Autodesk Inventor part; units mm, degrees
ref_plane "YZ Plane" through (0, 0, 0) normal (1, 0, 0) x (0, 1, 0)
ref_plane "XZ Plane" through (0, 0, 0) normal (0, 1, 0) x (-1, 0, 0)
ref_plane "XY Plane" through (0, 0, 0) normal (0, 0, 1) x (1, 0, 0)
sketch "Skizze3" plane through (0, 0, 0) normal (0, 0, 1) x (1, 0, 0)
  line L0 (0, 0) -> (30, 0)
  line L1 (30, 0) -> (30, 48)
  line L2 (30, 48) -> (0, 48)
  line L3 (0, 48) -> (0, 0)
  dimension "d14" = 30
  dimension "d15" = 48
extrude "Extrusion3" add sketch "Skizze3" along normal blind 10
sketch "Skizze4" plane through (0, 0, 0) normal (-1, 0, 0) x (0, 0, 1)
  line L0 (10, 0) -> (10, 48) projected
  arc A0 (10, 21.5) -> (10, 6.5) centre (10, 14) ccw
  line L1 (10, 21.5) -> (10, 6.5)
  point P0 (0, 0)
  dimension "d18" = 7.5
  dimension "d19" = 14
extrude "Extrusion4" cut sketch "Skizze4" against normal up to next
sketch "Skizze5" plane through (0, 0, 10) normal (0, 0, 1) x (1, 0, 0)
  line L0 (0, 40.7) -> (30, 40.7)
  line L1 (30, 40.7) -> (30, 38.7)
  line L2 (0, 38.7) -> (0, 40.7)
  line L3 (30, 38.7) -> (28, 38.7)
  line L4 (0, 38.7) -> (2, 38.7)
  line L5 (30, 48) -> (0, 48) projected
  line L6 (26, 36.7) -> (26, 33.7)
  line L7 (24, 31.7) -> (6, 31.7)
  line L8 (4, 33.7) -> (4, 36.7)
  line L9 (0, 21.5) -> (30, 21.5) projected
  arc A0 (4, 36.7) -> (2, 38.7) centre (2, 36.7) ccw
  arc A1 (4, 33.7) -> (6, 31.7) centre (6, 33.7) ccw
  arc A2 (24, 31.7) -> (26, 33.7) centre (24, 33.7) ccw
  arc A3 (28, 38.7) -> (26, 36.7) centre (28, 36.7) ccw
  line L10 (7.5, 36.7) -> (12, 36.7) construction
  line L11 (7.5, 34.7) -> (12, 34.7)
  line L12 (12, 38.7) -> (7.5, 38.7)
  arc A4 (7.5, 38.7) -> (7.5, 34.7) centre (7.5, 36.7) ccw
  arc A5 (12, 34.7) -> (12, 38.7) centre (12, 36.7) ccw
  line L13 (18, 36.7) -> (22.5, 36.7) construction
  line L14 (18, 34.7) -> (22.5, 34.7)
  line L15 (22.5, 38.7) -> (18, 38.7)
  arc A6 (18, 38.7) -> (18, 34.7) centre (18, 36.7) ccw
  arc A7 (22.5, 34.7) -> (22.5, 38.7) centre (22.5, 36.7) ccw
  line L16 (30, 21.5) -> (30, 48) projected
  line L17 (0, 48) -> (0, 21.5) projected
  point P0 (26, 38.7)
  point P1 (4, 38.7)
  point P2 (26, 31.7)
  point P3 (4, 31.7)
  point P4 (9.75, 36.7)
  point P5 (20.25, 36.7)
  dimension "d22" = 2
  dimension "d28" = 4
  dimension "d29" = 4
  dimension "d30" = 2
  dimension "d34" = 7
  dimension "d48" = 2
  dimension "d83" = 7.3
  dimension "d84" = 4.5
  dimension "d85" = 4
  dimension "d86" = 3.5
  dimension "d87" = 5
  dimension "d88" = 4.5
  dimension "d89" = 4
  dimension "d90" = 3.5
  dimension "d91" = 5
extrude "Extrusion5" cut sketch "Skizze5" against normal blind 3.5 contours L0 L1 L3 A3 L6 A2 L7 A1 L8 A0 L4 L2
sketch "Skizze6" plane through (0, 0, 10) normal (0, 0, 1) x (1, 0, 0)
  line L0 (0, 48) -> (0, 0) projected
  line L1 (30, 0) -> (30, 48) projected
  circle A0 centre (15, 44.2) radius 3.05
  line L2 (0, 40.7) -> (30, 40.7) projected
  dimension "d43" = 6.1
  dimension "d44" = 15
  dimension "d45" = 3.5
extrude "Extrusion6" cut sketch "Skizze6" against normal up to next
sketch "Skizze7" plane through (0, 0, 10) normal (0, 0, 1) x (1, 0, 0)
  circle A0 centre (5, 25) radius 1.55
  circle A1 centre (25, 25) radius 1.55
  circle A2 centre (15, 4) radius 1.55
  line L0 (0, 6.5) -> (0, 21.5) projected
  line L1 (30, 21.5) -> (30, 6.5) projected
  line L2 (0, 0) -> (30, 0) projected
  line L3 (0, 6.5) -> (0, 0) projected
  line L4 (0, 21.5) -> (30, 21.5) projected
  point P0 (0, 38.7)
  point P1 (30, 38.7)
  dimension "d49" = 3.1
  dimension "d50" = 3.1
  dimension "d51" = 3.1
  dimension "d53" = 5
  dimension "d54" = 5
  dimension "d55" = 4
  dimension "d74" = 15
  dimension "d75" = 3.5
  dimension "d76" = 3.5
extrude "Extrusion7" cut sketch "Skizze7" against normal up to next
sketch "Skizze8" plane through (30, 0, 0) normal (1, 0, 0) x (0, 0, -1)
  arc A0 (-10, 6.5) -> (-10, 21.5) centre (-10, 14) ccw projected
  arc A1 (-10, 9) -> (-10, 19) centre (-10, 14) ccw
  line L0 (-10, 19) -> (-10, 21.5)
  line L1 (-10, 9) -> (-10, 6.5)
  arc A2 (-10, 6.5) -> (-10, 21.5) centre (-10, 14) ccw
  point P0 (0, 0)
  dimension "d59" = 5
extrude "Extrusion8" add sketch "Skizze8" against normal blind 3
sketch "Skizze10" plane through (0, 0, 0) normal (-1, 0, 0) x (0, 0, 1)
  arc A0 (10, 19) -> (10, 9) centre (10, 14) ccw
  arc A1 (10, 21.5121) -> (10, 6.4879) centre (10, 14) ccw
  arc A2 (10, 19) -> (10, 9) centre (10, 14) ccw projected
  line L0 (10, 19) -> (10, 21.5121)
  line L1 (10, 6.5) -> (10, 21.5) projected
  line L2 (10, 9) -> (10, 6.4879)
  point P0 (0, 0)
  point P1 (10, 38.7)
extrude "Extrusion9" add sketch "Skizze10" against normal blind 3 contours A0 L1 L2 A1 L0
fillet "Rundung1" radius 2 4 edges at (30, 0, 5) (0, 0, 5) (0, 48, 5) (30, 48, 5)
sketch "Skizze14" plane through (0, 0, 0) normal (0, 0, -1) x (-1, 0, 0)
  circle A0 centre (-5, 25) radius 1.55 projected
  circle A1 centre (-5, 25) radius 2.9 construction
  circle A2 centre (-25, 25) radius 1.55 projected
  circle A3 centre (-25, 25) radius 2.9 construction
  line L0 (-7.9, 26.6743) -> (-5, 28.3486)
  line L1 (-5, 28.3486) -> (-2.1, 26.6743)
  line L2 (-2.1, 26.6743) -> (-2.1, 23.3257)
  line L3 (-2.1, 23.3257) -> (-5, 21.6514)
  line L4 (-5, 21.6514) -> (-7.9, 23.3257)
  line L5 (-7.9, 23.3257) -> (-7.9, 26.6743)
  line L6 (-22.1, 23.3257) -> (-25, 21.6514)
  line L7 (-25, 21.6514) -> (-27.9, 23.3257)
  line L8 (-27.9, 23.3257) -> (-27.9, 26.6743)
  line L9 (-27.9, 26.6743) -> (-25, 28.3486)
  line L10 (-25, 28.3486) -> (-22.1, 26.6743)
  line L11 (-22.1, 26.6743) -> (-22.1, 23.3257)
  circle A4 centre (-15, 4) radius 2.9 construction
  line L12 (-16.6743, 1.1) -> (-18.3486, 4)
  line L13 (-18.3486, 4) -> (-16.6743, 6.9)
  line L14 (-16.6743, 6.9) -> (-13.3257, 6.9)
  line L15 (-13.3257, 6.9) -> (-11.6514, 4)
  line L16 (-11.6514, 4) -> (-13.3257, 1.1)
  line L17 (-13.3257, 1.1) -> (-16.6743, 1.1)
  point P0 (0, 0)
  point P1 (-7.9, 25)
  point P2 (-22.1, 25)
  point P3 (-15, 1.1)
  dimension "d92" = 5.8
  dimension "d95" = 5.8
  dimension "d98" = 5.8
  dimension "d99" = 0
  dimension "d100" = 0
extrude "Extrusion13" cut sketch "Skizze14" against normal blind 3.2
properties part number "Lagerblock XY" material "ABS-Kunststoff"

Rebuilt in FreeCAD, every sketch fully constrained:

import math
import FreeCAD as App
import Part
import Sketcher

V = App.Vector
Q = App.Units.Quantity


def edges_at(feature, points):
    """Names of the edges that pass closest to the given points."""
    edges = feature.Shape.Edges
    near = lambda p: min(range(len(edges)), key=lambda i: edges[i].distToShape(Part.Vertex(*p))[0])
    return sorted({f"Edge{near(p) + 1}" for p in points})


def add_polygon(sketch, points):
    """Adds a closed chain of lines whose ends are joined by coincident constraints."""
    first, n = sketch.GeometryCount, len(points)
    for a, b in zip(points, points[1:] + points[:1]):
        sketch.addGeometry(Part.LineSegment(App.Vector(*a, 0), App.Vector(*b, 0)), False)
    for i in range(n):
        sketch.addConstraint(Sketcher.Constraint("Coincident", first + i, 2, first + (i + 1) % n, 1))

doc = App.newDocument("Part")
params = doc.addObject("Spreadsheet::Sheet", "Params")
for row, (alias, value) in enumerate([
    ("sketch1_width", "30 mm"),
    ("sketch1_height", "48 mm"),
    ("pad1_length", "10 mm"),
    ("sketch2_radius", "7.5 mm"),
    ("sketch3_radius", "2 mm"),
    ("sketch3_width", "2 mm"),
    ("sketch3_width2", "4.5 mm"),
    ("sketch3_width3", "30 mm"),
    ("pocket2_length", "3.5 mm"),
    ("sketch4_diameter", "6.1 mm"),
    ("sketch5_diameter", "3.1 mm"),
    ("pocket4_length", "10 mm"),
    ("sketch6_radius", "5 mm"),
    ("sketch6_radius2", "7.5 mm"),
    ("pad2_length", "3 mm"),
    ("sketch7_radius", "5 mm"),
    ("pad3_length", "3 mm"),
    ("fillet_radius", "2 mm"),
    ("sketch8_diameter", "3.1 mm"),
    ("pocket5_length", "3.2 mm"),
], start=1):
    params.set(f"A{row}", alias)
    params.set(f"B{row}", "=" + value)
    params.setAlias(f"B{row}", alias)

body = doc.addObject("PartDesign::Body", "Body")

# Sketch on XY plane
sketch1 = doc.addObject("Sketcher::SketchObject", "Sketch")
body.addObject(sketch1)
sketch1.AttachmentSupport = (doc.XY_Plane, [""])
sketch1.MapMode = "FlatFace"
add_polygon(sketch1, [(0, 48), (0, 0), (30, 0), (30, 48)])  # lines 0-3
sketch1.addConstraint([
    Sketcher.Constraint("Vertical", 0),
    Sketcher.Constraint("Horizontal", 1),
    Sketcher.Constraint("Vertical", 2),
    Sketcher.Constraint("Horizontal", 3),
    Sketcher.Constraint("Coincident", 0, 2, -1, 1),
    Sketcher.Constraint("DistanceX", 1, 1, 1, 2, Q("30 mm")),
    Sketcher.Constraint("DistanceY", 0, 2, 0, 1, Q("48 mm")),
])
sketch1.setExpression("Constraints[9]", "Params.sketch1_width")
sketch1.setExpression("Constraints[10]", "Params.sketch1_height")
pad1 = doc.addObject("PartDesign::Pad", "Pad")
body.addObject(pad1)
pad1.Profile = sketch1
pad1.setExpression("Length", "Params.pad1_length")

# Sketch on YZ plane
sketch2 = doc.addObject("Sketcher::SketchObject", "Sketch001")
body.addObject(sketch2)
sketch2.AttachmentSupport = (doc.YZ_Plane, [""])
sketch2.MapMode = "FlatFace"
sketch2.addGeometry([
    Part.ArcOfCircle(Part.Circle(V(14, 10, 0), V(0, 0, 1), 8), math.radians(180), math.radians(360)),
    Part.LineSegment(V(6, 10, 0), V(22, 10, 0)),
], False)
sketch2.addConstraint([
    Sketcher.Constraint("Coincident", 0, 1, 1, 1),
    Sketcher.Constraint("Coincident", 1, 2, 0, 2),
    Sketcher.Constraint("Horizontal", 1),
    Sketcher.Constraint("Radius", 0, Q("7.5 mm")),
    Sketcher.Constraint("DistanceX", -1, 1, 0, 3, Q("14 mm")),
    Sketcher.Constraint("DistanceY", -1, 1, 0, 3, Q("10 mm")),
    Sketcher.Constraint("DistanceY", -1, 1, 0, 1, Q("10 mm")),
])
sketch2.setExpression("Constraints[3]", "Params.sketch2_radius")
pocket1 = doc.addObject("PartDesign::Pocket", "Pocket")
body.addObject(pocket1)
pocket1.Profile = sketch2
pocket1.Type = "UpToFirst"
pocket1.Reversed = True

# Sketch on XY plane
sketch3 = doc.addObject("Sketcher::SketchObject", "Sketch002")
body.addObject(sketch3)
sketch3.AttachmentSupport = (doc.XY_Plane, [""])
sketch3.MapMode = "FlatFace"
sketch3.AttachmentOffset = App.Placement(V(0, 0, 10), App.Rotation())
sketch3.addGeometry([
    Part.LineSegment(V(30, 40.7, 0), V(0, 40.7, 0)),  # 0
    Part.LineSegment(V(0, 40.7, 0), V(0, 38.7, 0)),  # 1
    Part.LineSegment(V(0, 38.7, 0), V(2, 38.7, 0)),  # 2
    Part.ArcOfCircle(Part.Circle(V(2, 36.7, 0), V(0, 0, 1), 2), math.radians(0), math.radians(90)),  # 3
    Part.LineSegment(V(4, 36.7, 0), V(4, 33.7, 0)),  # 4
    Part.ArcOfCircle(Part.Circle(V(6, 33.7, 0), V(0, 0, 1), 2), math.radians(180), math.radians(270)),  # 5
    Part.LineSegment(V(6, 31.7, 0), V(24, 31.7, 0)),  # 6
    Part.ArcOfCircle(Part.Circle(V(24, 33.7, 0), V(0, 0, 1), 2), math.radians(-90), math.radians(0)),  # 7
    Part.LineSegment(V(26, 33.7, 0), V(26, 36.7, 0)),  # 8
    Part.ArcOfCircle(Part.Circle(V(28, 36.7, 0), V(0, 0, 1), 2), math.radians(90), math.radians(180)),  # 9
    Part.LineSegment(V(28, 38.7, 0), V(30, 38.7, 0)),  # 10
    Part.LineSegment(V(30, 38.7, 0), V(30, 40.7, 0)),  # 11
    Part.LineSegment(V(12, 34.7, 0), V(7.5, 34.7, 0)),  # 12
    Part.ArcOfCircle(Part.Circle(V(7.5, 36.7, 0), V(0, 0, 1), 2), math.radians(90), math.radians(270)),  # 13
    Part.LineSegment(V(7.5, 38.7, 0), V(12, 38.7, 0)),  # 14
    Part.ArcOfCircle(Part.Circle(V(12, 36.7, 0), V(0, 0, 1), 2), math.radians(-90), math.radians(90)),  # 15
    Part.LineSegment(V(22.5, 34.7, 0), V(18, 34.7, 0)),  # 16
    Part.ArcOfCircle(Part.Circle(V(18, 36.7, 0), V(0, 0, 1), 2), math.radians(90), math.radians(270)),  # 17
    Part.LineSegment(V(18, 38.7, 0), V(22.5, 38.7, 0)),  # 18
    Part.ArcOfCircle(Part.Circle(V(22.5, 36.7, 0), V(0, 0, 1), 2), math.radians(-90), math.radians(90)),  # 19
], False)
sketch3.addConstraint([
    Sketcher.Constraint("Coincident", 0, 2, 1, 1),
    Sketcher.Constraint("Coincident", 1, 2, 2, 1),
    Sketcher.Constraint("Tangent", 2, 2, 3, 2),
    Sketcher.Constraint("Tangent", 3, 1, 4, 1),
    Sketcher.Constraint("Tangent", 4, 2, 5, 1),
    Sketcher.Constraint("Tangent", 5, 2, 6, 1),
    Sketcher.Constraint("Tangent", 6, 2, 7, 1),
    Sketcher.Constraint("Tangent", 7, 2, 8, 1),
    Sketcher.Constraint("Tangent", 8, 2, 9, 2),
    Sketcher.Constraint("Tangent", 9, 1, 10, 1),
    Sketcher.Constraint("Coincident", 10, 2, 11, 1),
    Sketcher.Constraint("Coincident", 11, 2, 0, 1),
    Sketcher.Constraint("Tangent", 12, 2, 13, 2),
    Sketcher.Constraint("Tangent", 13, 1, 14, 1),
    Sketcher.Constraint("Tangent", 14, 2, 15, 2),
    Sketcher.Constraint("Tangent", 15, 1, 12, 1),
    Sketcher.Constraint("Tangent", 16, 2, 17, 2),
    Sketcher.Constraint("Tangent", 17, 1, 18, 1),
    Sketcher.Constraint("Tangent", 18, 2, 19, 2),
    Sketcher.Constraint("Tangent", 19, 1, 16, 1),
    Sketcher.Constraint("Horizontal", 0),
    Sketcher.Constraint("Vertical", 1),
    Sketcher.Constraint("Horizontal", 2),
    Sketcher.Constraint("Vertical", 4),
    Sketcher.Constraint("Horizontal", 6),
    Sketcher.Constraint("Vertical", 8),
    Sketcher.Constraint("Horizontal", 10),
    Sketcher.Constraint("Vertical", 11),
    Sketcher.Constraint("Horizontal", 12),
    Sketcher.Constraint("Horizontal", 14),
    Sketcher.Constraint("Horizontal", 16),
    Sketcher.Constraint("Horizontal", 18),
    Sketcher.Constraint("Equal", 3, 5),
    Sketcher.Constraint("Equal", 5, 7),
    Sketcher.Constraint("Equal", 7, 9),
    Sketcher.Constraint("Equal", 9, 13),
    Sketcher.Constraint("Equal", 15, 17),
    Sketcher.Constraint("PointOnObject", 0, 2, -2),
    Sketcher.Constraint("Horizontal", 3, 3, 9, 3),
    Sketcher.Constraint("Horizontal", 9, 3, 13, 3),
    Sketcher.Constraint("Horizontal", 15, 3, 17, 3),
    Sketcher.Constraint("Equal", 2, 10),
    Sketcher.Constraint("Equal", 14, 16),
    Sketcher.Constraint("Equal", 10, 1),
    Sketcher.Constraint("Radius", 3, Q("2 mm")),
    Sketcher.Constraint("DistanceX", 2, 1, 2, 2, Q("2 mm")),
    Sketcher.Constraint("DistanceX", 12, 2, 12, 1, Q("4.5 mm")),
    Sketcher.Constraint("DistanceY", 5, 3, 0, 2, Q("7 mm")),
    Sketcher.Constraint("DistanceX", 3, 1, 13, 3, Q("3.5 mm")),
    Sketcher.Constraint("DistanceX", 19, 3, 7, 2, Q("3.5 mm")),
    Sketcher.Constraint("DistanceX", 0, 2, 0, 1, Q("30 mm")),
    Sketcher.Constraint("DistanceY", -1, 1, 3, 3, Q("36.7 mm")),
])
sketch3.setExpression("Constraints[44]", "Params.sketch3_radius")
sketch3.setExpression("Constraints[45]", "Params.sketch3_width")
sketch3.setExpression("Constraints[46]", "Params.sketch3_width2")
sketch3.setExpression("Constraints[50]", "Params.sketch3_width3")
pocket2 = doc.addObject("PartDesign::Pocket", "Pocket001")
body.addObject(pocket2)
pocket2.Profile = sketch3
pocket2.setExpression("Length", "Params.pocket2_length")

# Sketch on XY plane
sketch4 = doc.addObject("Sketcher::SketchObject", "Sketch003")
body.addObject(sketch4)
sketch4.AttachmentSupport = (doc.XY_Plane, [""])
sketch4.MapMode = "FlatFace"
sketch4.AttachmentOffset = App.Placement(V(0, 0, 10), App.Rotation())
sketch4.addGeometry(Part.Circle(V(15, 44.2, 0), V(0, 0, 1), 3), False)
sketch4.addConstraint([
    Sketcher.Constraint("Diameter", 0, Q("6.1 mm")),
    Sketcher.Constraint("DistanceX", -1, 1, 0, 3, Q("15 mm")),
    Sketcher.Constraint("DistanceY", -1, 1, 0, 3, Q("44.2 mm")),
])
sketch4.setExpression("Constraints[0]", "Params.sketch4_diameter")
pocket3 = doc.addObject("PartDesign::Pocket", "Pocket002")
body.addObject(pocket3)
pocket3.Profile = sketch4
pocket3.Type = "UpToFirst"

# Sketch on XY plane
sketch5 = doc.addObject("Sketcher::SketchObject", "Sketch004")
body.addObject(sketch5)
sketch5.AttachmentSupport = (doc.XY_Plane, [""])
sketch5.MapMode = "FlatFace"
sketch5.AttachmentOffset = App.Placement(V(0, 0, 10), App.Rotation())
sketch5.addGeometry([
    Part.Circle(V(5, 25, 0), V(0, 0, 1), 1.6),
    Part.Circle(V(25, 25, 0), V(0, 0, 1), 1.6),
    Part.Circle(V(15, 4, 0), V(0, 0, 1), 1.6),
], False)
sketch5.addConstraint([
    Sketcher.Constraint("Equal", 0, 1),
    Sketcher.Constraint("Equal", 1, 2),
    Sketcher.Constraint("Horizontal", 0, 3, 1, 3),
    Sketcher.Constraint("Diameter", 0, Q("3.1 mm")),
    Sketcher.Constraint("DistanceX", -1, 1, 0, 3, Q("5 mm")),
    Sketcher.Constraint("DistanceX", -1, 1, 2, 3, Q("15 mm")),
    Sketcher.Constraint("DistanceY", -1, 1, 2, 3, Q("4 mm")),
    Sketcher.Constraint("DistanceY", -1, 1, 0, 3, Q("25 mm")),
    Sketcher.Constraint("DistanceX", -1, 1, 1, 3, Q("25 mm")),
])
sketch5.setExpression("Constraints[3]", "Params.sketch5_diameter")
pocket4 = doc.addObject("PartDesign::Pocket", "Pocket003")
body.addObject(pocket4)
pocket4.Profile = sketch5
pocket4.setExpression("Length", "Params.pocket4_length")

# Sketch on YZ plane
sketch6 = doc.addObject("Sketcher::SketchObject", "Sketch005")
body.addObject(sketch6)
sketch6.AttachmentSupport = (doc.YZ_Plane, [""])
sketch6.MapMode = "FlatFace"
sketch6.AttachmentOffset = App.Placement(V(0, 0, 30), App.Rotation())
sketch6.addGeometry([
    Part.LineSegment(V(9, 10, 0), V(6.5, 10, 0)),
    Part.ArcOfCircle(Part.Circle(V(14, 10, 0), V(0, 0, 1), 7.5), math.radians(180), math.radians(360)),
    Part.LineSegment(V(21.5, 10, 0), V(19, 10, 0)),
    Part.ArcOfCircle(Part.Circle(V(14, 10, 0), V(0, 0, 1), 5), math.radians(180), math.radians(360)),
], False)
sketch6.addConstraint([
    Sketcher.Constraint("Coincident", 0, 2, 1, 1),
    Sketcher.Constraint("Coincident", 1, 2, 2, 1),
    Sketcher.Constraint("Coincident", 2, 2, 3, 2),
    Sketcher.Constraint("Coincident", 3, 1, 0, 1),
    Sketcher.Constraint("Horizontal", 0),
    Sketcher.Constraint("Horizontal", 2),
    Sketcher.Constraint("Coincident", 3, 3, 1, 3),
    Sketcher.Constraint("Horizontal", 3, 3, 0, 2),
    Sketcher.Constraint("Horizontal", 0, 2, 1, 2),
    Sketcher.Constraint("Radius", 3, Q("5 mm")),
    Sketcher.Constraint("Radius", 1, Q("7.5 mm")),
    Sketcher.Constraint("DistanceX", -1, 1, 1, 3, Q("14 mm")),
    Sketcher.Constraint("DistanceY", -1, 1, 1, 3, Q("10 mm")),
])
sketch6.setExpression("Constraints[9]", "Params.sketch6_radius")
sketch6.setExpression("Constraints[10]", "Params.sketch6_radius2")
pad2 = doc.addObject("PartDesign::Pad", "Pad001")
body.addObject(pad2)
pad2.Profile = sketch6
pad2.setExpression("Length", "Params.pad2_length")
pad2.Reversed = True

# Sketch on YZ plane
sketch7 = doc.addObject("Sketcher::SketchObject", "Sketch006")
body.addObject(sketch7)
sketch7.AttachmentSupport = (doc.YZ_Plane, [""])
sketch7.MapMode = "FlatFace"
sketch7.addGeometry([
    Part.ArcOfCircle(Part.Circle(V(14, 10, 0), V(0, 0, 1), 5), math.radians(180), math.radians(360)),
    Part.LineSegment(V(19, 10, 0), V(21.5, 10, 0)),
    Part.ArcOfCircle(Part.Circle(V(14, 10, 0), V(0, 0, 1), 7.5), math.radians(180), math.radians(360)),
    Part.LineSegment(V(6.5, 10, 0), V(9, 10, 0)),
], False)
sketch7.addConstraint([
    Sketcher.Constraint("Coincident", 0, 2, 1, 1),
    Sketcher.Constraint("Coincident", 1, 2, 2, 2),
    Sketcher.Constraint("Coincident", 2, 1, 3, 1),
    Sketcher.Constraint("Coincident", 3, 2, 0, 1),
    Sketcher.Constraint("Horizontal", 1),
    Sketcher.Constraint("Horizontal", 3),
    Sketcher.Constraint("Coincident", 2, 3, 0, 3),
    Sketcher.Constraint("Horizontal", 2, 3, 0, 2),
    Sketcher.Constraint("Horizontal", 1, 2, 2, 1),
    Sketcher.Constraint("Radius", 0, Q("5 mm")),
    Sketcher.Constraint("DistanceX", -1, 1, 0, 3, Q("14 mm")),
    Sketcher.Constraint("DistanceY", -1, 1, 0, 3, Q("10 mm")),
    Sketcher.Constraint("Radius", 2, Q("7.512 mm")),
])
sketch7.setExpression("Constraints[9]", "Params.sketch7_radius")
pad3 = doc.addObject("PartDesign::Pad", "Pad002")
body.addObject(pad3)
pad3.Profile = sketch7
pad3.setExpression("Length", "Params.pad3_length")
doc.recompute()

fillet = doc.addObject("PartDesign::Fillet", "Fillet")
body.addObject(fillet)
fillet.Base = (pad3, edges_at(pad3, [
    (30, 0, 5),
    (0, 0, 5),
    (0, 48, 5),
    (30, 48, 5),
]))
fillet.setExpression("Radius", "Params.fillet_radius")

# Sketch on XY plane
sketch8 = doc.addObject("Sketcher::SketchObject", "Sketch007")
body.addObject(sketch8)
sketch8.AttachmentSupport = (doc.XY_Plane, [""])
sketch8.MapMode = "FlatFace"
add_polygon(sketch8, [(5, 28.3), (7.9, 26.7), (7.9, 23.3), (5, 21.7), (2.1, 23.3), (2.1, 26.7)])  # lines 0-5
sketch8.addGeometry(Part.Circle(V(5, 25, 0), V(0, 0, 1), 1.6), False)  # 6
add_polygon(sketch8, [(25, 21.7), (22.1, 23.3), (22.1, 26.7), (25, 28.3), (27.9, 26.7), (27.9, 23.3)])  # lines 7-12
sketch8.addGeometry(Part.Circle(V(25, 25, 0), V(0, 0, 1), 1.6), False)  # 13
add_polygon(sketch8, [(18.3, 4), (16.7, 1.1), (13.3, 1.1), (11.7, 4), (13.3, 6.9), (16.7, 6.9)])  # lines 14-19
sketch8.addConstraint([
    Sketcher.Constraint("Vertical", 1),
    Sketcher.Constraint("Vertical", 4),
    Sketcher.Constraint("Vertical", 8),
    Sketcher.Constraint("Vertical", 11),
    Sketcher.Constraint("Horizontal", 15),
    Sketcher.Constraint("Horizontal", 18),
    Sketcher.Constraint("Equal", 6, 13),
    Sketcher.Constraint("Parallel", 0, 3),
    Sketcher.Constraint("Parallel", 2, 5),
    Sketcher.Constraint("Parallel", 3, 7),
    Sketcher.Constraint("Parallel", 5, 9),
    Sketcher.Constraint("Parallel", 7, 10),
    Sketcher.Constraint("Parallel", 9, 12),
    Sketcher.Constraint("Perpendicular", 10, 14),
    Sketcher.Constraint("Perpendicular", 12, 16),
    Sketcher.Constraint("Parallel", 14, 17),
    Sketcher.Constraint("Parallel", 16, 19),
    Sketcher.Constraint("Horizontal", 6, 3, 13, 3),
    Sketcher.Constraint("Horizontal", 1, 2, 3, 2),
    Sketcher.Constraint("Horizontal", 0, 2, 4, 2),
    Sketcher.Constraint("Horizontal", 3, 2, 7, 2),
    Sketcher.Constraint("Horizontal", 4, 2, 8, 2),
    Sketcher.Constraint("Horizontal", 5, 2, 9, 2),
    Sketcher.Constraint("Horizontal", 8, 2, 10, 2),
    Sketcher.Constraint("Horizontal", 7, 2, 11, 2),
    Sketcher.Constraint("Horizontal", 16, 2, 19, 2),
    Sketcher.Constraint("Vertical", 6, 3, 2, 2),
    Sketcher.Constraint("Vertical", 2, 2, 5, 2),
    Sketcher.Constraint("Vertical", 13, 3, 9, 2),
    Sketcher.Constraint("Vertical", 15, 2, 17, 2),
    Sketcher.Constraint("Equal", 18, 1),
    Sketcher.Constraint("Equal", 12, 14),
    Sketcher.Constraint("Diameter", 6, Q("3.1 mm")),
    Sketcher.Constraint("DistanceX", 3, 2, 1, 2, Q("5.8 mm")),
    Sketcher.Constraint("Angle", 0, Q("-29.9998 deg")),
    Sketcher.Constraint("DistanceX", -1, 1, 6, 3, Q("5 mm")),
    Sketcher.Constraint("DistanceY", -1, 1, 6, 3, Q("25 mm")),
    Sketcher.Constraint("DistanceX", -1, 1, 13, 3, Q("25 mm")),
    Sketcher.Constraint("DistanceY", -1, 1, 16, 2, Q("4 mm")),
    Sketcher.Constraint("DistanceX", 15, 2, 15, 1, Q("3.3486 mm")),
    Sketcher.Constraint("DistanceY", -1, 1, 0, 2, Q("26.6743 mm")),
    Sketcher.Constraint("DistanceX", -1, 1, 14, 2, Q("16.6743 mm")),
])
sketch8.setExpression("Constraints[50]", "Params.sketch8_diameter")
pocket5 = doc.addObject("PartDesign::Pocket", "Pocket004")
body.addObject(pocket5)
pocket5.Profile = sketch8
pocket5.setExpression("Length", "Params.pocket5_length")
pocket5.Reversed = True

doc.recompute()
